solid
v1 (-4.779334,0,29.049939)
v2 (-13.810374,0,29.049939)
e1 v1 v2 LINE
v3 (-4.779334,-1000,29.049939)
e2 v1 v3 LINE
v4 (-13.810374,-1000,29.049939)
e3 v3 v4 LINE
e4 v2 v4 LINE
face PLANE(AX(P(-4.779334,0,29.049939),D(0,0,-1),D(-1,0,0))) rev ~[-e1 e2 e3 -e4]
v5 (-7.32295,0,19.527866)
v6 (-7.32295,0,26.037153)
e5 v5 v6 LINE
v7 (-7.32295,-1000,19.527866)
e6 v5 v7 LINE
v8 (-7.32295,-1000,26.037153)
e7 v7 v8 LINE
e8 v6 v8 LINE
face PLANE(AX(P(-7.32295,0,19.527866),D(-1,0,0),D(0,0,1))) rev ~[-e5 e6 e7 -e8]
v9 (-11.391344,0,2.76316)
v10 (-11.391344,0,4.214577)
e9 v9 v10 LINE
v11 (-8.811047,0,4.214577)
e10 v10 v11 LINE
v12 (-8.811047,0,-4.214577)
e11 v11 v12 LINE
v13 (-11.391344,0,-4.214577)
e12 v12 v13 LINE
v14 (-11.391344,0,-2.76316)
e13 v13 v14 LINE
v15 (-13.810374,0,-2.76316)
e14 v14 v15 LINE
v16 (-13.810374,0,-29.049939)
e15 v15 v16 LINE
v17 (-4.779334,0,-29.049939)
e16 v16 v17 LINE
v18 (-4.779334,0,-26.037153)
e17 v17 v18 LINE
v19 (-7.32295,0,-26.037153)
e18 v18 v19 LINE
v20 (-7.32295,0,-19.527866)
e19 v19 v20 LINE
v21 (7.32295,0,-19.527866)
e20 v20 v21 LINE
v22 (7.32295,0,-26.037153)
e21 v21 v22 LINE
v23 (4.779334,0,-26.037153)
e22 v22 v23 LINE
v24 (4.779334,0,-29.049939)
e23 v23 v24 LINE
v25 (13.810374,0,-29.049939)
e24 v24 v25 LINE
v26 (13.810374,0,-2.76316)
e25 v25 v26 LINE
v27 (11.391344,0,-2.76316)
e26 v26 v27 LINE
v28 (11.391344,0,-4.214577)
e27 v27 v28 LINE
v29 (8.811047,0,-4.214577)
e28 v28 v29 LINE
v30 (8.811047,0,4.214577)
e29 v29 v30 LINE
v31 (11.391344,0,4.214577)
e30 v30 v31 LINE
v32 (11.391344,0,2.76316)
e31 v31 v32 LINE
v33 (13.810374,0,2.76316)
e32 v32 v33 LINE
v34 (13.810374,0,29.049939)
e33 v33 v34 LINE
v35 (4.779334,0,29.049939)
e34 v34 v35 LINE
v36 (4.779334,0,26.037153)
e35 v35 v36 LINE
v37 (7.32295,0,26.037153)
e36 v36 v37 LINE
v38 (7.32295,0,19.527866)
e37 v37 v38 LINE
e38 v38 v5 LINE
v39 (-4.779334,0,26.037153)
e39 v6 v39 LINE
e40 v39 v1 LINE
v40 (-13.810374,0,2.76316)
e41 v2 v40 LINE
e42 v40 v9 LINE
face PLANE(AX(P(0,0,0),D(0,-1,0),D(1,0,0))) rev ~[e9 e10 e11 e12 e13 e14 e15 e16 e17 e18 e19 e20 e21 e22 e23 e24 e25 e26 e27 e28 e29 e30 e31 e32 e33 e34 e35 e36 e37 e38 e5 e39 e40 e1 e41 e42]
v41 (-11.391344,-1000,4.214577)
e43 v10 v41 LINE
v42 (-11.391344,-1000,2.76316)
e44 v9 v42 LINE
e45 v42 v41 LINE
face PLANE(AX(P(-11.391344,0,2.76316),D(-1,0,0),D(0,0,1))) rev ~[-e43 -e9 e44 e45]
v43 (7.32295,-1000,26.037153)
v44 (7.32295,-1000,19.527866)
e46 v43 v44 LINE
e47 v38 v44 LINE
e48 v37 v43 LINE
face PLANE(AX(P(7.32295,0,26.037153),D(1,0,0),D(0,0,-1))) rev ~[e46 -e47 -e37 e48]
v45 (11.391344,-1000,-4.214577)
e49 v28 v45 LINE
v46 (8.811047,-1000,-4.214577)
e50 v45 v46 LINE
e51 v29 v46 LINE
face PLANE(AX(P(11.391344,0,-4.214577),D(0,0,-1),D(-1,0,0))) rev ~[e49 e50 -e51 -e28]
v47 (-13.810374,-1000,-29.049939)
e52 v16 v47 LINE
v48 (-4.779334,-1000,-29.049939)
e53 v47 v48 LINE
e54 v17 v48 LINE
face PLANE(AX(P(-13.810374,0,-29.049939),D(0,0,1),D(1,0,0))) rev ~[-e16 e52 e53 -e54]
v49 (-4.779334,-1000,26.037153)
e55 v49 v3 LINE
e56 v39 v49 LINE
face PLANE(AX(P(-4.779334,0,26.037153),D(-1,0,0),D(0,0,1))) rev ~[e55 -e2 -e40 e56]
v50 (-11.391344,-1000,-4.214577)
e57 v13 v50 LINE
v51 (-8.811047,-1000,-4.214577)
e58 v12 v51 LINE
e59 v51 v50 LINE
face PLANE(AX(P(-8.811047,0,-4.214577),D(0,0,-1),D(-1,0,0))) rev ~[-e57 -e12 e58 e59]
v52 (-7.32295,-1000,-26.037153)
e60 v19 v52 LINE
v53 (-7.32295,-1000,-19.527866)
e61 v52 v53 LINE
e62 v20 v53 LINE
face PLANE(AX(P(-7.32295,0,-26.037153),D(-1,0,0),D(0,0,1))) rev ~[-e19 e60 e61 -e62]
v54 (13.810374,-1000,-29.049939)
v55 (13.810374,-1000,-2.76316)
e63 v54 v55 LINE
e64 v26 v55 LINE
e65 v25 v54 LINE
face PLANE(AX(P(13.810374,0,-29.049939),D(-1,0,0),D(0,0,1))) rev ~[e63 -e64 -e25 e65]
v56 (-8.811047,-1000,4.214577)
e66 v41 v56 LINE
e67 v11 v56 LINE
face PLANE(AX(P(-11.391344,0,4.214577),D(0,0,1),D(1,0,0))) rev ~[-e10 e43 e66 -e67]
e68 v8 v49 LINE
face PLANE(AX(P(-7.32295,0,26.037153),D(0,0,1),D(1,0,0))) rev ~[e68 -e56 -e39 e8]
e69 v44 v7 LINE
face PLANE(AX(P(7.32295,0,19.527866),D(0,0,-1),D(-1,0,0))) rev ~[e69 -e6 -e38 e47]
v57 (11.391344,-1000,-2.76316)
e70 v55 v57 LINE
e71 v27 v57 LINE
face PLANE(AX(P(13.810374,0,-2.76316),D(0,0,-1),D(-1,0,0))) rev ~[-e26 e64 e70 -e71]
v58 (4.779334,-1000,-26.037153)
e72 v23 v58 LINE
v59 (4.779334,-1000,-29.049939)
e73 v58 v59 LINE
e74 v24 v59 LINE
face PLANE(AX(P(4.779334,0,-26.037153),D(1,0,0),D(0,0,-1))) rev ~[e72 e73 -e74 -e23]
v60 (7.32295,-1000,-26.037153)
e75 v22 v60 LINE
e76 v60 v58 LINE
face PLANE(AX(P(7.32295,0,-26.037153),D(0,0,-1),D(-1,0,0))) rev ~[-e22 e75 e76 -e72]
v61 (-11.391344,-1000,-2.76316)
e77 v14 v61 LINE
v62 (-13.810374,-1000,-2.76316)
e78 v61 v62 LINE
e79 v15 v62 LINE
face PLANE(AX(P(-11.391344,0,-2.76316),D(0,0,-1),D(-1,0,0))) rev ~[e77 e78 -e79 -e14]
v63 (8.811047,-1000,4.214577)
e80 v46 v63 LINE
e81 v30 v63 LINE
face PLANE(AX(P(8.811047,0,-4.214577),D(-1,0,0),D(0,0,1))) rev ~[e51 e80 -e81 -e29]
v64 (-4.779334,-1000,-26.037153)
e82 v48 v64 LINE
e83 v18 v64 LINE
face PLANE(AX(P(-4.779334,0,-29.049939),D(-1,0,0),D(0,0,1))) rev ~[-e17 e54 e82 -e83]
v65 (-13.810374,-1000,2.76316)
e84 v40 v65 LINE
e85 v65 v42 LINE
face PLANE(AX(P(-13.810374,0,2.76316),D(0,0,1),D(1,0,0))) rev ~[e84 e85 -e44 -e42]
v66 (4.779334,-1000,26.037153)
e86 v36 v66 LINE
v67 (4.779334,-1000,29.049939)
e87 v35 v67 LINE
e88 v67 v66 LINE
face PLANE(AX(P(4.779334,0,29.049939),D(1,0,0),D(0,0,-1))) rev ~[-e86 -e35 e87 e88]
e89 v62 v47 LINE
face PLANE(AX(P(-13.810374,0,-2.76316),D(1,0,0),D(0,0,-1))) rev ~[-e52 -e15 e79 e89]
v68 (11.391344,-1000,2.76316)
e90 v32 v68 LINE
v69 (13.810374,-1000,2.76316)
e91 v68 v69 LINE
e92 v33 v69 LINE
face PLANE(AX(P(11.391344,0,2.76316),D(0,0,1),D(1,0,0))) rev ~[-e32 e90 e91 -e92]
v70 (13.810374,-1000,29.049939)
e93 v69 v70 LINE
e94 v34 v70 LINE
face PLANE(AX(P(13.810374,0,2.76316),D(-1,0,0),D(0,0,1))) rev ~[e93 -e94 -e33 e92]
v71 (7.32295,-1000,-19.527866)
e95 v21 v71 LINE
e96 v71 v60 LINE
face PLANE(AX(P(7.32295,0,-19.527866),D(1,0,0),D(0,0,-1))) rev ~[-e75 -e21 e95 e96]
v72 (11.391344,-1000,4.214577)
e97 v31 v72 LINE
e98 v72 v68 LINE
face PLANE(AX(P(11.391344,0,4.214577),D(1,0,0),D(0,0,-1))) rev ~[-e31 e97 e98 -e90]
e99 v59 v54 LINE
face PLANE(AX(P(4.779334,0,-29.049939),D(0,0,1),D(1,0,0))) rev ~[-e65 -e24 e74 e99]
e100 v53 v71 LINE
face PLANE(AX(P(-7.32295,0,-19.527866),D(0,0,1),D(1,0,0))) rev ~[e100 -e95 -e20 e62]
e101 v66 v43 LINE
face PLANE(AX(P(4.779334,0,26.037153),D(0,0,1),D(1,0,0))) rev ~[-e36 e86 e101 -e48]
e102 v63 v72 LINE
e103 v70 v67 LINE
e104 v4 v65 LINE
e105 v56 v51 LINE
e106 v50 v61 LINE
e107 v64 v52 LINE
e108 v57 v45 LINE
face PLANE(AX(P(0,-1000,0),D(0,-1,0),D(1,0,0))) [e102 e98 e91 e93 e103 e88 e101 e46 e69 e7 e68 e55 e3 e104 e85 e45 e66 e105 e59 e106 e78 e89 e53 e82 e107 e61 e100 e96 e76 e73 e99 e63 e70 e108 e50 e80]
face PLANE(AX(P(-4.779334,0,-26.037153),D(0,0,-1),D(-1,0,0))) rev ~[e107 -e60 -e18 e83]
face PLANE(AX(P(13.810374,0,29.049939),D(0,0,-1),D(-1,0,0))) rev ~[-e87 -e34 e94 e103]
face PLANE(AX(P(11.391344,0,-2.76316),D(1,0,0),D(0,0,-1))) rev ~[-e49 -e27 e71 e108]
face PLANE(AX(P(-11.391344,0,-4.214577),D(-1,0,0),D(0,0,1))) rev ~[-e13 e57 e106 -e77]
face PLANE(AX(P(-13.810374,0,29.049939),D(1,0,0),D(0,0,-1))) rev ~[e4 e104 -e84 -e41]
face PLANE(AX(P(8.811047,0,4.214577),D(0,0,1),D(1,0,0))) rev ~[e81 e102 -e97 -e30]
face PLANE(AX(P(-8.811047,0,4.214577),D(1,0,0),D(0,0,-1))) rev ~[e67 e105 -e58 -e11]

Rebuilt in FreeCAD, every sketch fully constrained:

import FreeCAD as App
import Part
import Sketcher
Q = App.Units.Quantity

doc = App.newDocument("Part")
params = doc.addObject("Spreadsheet::Sheet", "Params")
for row, (alias, value) in enumerate([
    ("pad1_length", "1000 mm"),
], start=1):
    params.set(f"A{row}", alias)
    params.set(f"B{row}", "=" + value)
    params.setAlias(f"B{row}", alias)

body = doc.addObject("PartDesign::Body", "Body")

sketch1 = doc.addObject("Sketcher::SketchObject", "Sketch")
body.addObject(sketch1)
sketch1.AttachmentSupport = (doc.XZ_Plane, [""])
sketch1.MapMode = "FlatFace"
sketch1.addGeometry([
    Part.LineSegment(App.Vector(7.3, 19.5, 0), App.Vector(-7.3, 19.5, 0)),
    Part.LineSegment(App.Vector(-7.3, 19.5, 0), App.Vector(-7.3, 26, 0)),
    Part.LineSegment(App.Vector(-7.3, 26, 0), App.Vector(-4.8, 26, 0)),
    Part.LineSegment(App.Vector(-4.8, 26, 0), App.Vector(-4.8, 29, 0)),
    Part.LineSegment(App.Vector(-4.8, 29, 0), App.Vector(-13.8, 29, 0)),
    Part.LineSegment(App.Vector(-13.8, 29, 0), App.Vector(-13.8, 2.8, 0)),
    Part.LineSegment(App.Vector(-13.8, 2.8, 0), App.Vector(-11.4, 2.8, 0)),
    Part.LineSegment(App.Vector(-11.4, 2.8, 0), App.Vector(-11.4, 4.2, 0)),
    Part.LineSegment(App.Vector(-11.4, 4.2, 0), App.Vector(-8.8, 4.2, 0)),
    Part.LineSegment(App.Vector(-8.8, 4.2, 0), App.Vector(-8.8, -4.2, 0)),
    Part.LineSegment(App.Vector(-8.8, -4.2, 0), App.Vector(-11.4, -4.2, 0)),
    Part.LineSegment(App.Vector(-11.4, -4.2, 0), App.Vector(-11.4, -2.8, 0)),
    Part.LineSegment(App.Vector(-11.4, -2.8, 0), App.Vector(-13.8, -2.8, 0)),
    Part.LineSegment(App.Vector(-13.8, -2.8, 0), App.Vector(-13.8, -29, 0)),
    Part.LineSegment(App.Vector(-13.8, -29, 0), App.Vector(-4.8, -29, 0)),
    Part.LineSegment(App.Vector(-4.8, -29, 0), App.Vector(-4.8, -26, 0)),
    Part.LineSegment(App.Vector(-4.8, -26, 0), App.Vector(-7.3, -26, 0)),
    Part.LineSegment(App.Vector(-7.3, -26, 0), App.Vector(-7.3, -19.5, 0)),
    Part.LineSegment(App.Vector(-7.3, -19.5, 0), App.Vector(7.3, -19.5, 0)),
    Part.LineSegment(App.Vector(7.3, -19.5, 0), App.Vector(7.3, -26, 0)),
    Part.LineSegment(App.Vector(7.3, -26, 0), App.Vector(4.8, -26, 0)),
    Part.LineSegment(App.Vector(4.8, -26, 0), App.Vector(4.8, -29, 0)),
    Part.LineSegment(App.Vector(4.8, -29, 0), App.Vector(13.8, -29, 0)),
    Part.LineSegment(App.Vector(13.8, -29, 0), App.Vector(13.8, -2.8, 0)),
    Part.LineSegment(App.Vector(13.8, -2.8, 0), App.Vector(11.4, -2.8, 0)),
    Part.LineSegment(App.Vector(11.4, -2.8, 0), App.Vector(11.4, -4.2, 0)),
    Part.LineSegment(App.Vector(11.4, -4.2, 0), App.Vector(8.8, -4.2, 0)),
    Part.LineSegment(App.Vector(8.8, -4.2, 0), App.Vector(8.8, 4.2, 0)),
    Part.LineSegment(App.Vector(8.8, 4.2, 0), App.Vector(11.4, 4.2, 0)),
    Part.LineSegment(App.Vector(11.4, 4.2, 0), App.Vector(11.4, 2.8, 0)),
    Part.LineSegment(App.Vector(11.4, 2.8, 0), App.Vector(13.8, 2.8, 0)),
    Part.LineSegment(App.Vector(13.8, 2.8, 0), App.Vector(13.8, 29, 0)),
    Part.LineSegment(App.Vector(13.8, 29, 0), App.Vector(4.8, 29, 0)),
    Part.LineSegment(App.Vector(4.8, 29, 0), App.Vector(4.8, 26, 0)),
    Part.LineSegment(App.Vector(4.8, 26, 0), App.Vector(7.3, 26, 0)),
    Part.LineSegment(App.Vector(7.3, 26, 0), App.Vector(7.3, 19.5, 0)),
], False)
sketch1.addConstraint([
    Sketcher.Constraint("Coincident", 0, 2, 1, 1),
    Sketcher.Constraint("Coincident", 1, 2, 2, 1),
    Sketcher.Constraint("Coincident", 2, 2, 3, 1),
    Sketcher.Constraint("Coincident", 3, 2, 4, 1),
    Sketcher.Constraint("Coincident", 4, 2, 5, 1),
    Sketcher.Constraint("Coincident", 5, 2, 6, 1),
    Sketcher.Constraint("Coincident", 6, 2, 7, 1),
    Sketcher.Constraint("Coincident", 7, 2, 8, 1),
    Sketcher.Constraint("Coincident", 8, 2, 9, 1),
    Sketcher.Constraint("Coincident", 9, 2, 10, 1),
    Sketcher.Constraint("Coincident", 10, 2, 11, 1),
    Sketcher.Constraint("Coincident", 11, 2, 12, 1),
    Sketcher.Constraint("Coincident", 12, 2, 13, 1),
    Sketcher.Constraint("Coincident", 13, 2, 14, 1),
    Sketcher.Constraint("Coincident", 14, 2, 15, 1),
    Sketcher.Constraint("Coincident", 15, 2, 16, 1),
    Sketcher.Constraint("Coincident", 16, 2, 17, 1),
    Sketcher.Constraint("Coincident", 17, 2, 18, 1),
    Sketcher.Constraint("Coincident", 18, 2, 19, 1),
    Sketcher.Constraint("Coincident", 19, 2, 20, 1),
    Sketcher.Constraint("Coincident", 20, 2, 21, 1),
    Sketcher.Constraint("Coincident", 21, 2, 22, 1),
    Sketcher.Constraint("Coincident", 22, 2, 23, 1),
    Sketcher.Constraint("Coincident", 23, 2, 24, 1),
    Sketcher.Constraint("Coincident", 24, 2, 25, 1),
    Sketcher.Constraint("Coincident", 25, 2, 26, 1),
    Sketcher.Constraint("Coincident", 26, 2, 27, 1),
    Sketcher.Constraint("Coincident", 27, 2, 28, 1),
    Sketcher.Constraint("Coincident", 28, 2, 29, 1),
    Sketcher.Constraint("Coincident", 29, 2, 30, 1),
    Sketcher.Constraint("Coincident", 30, 2, 31, 1),
    Sketcher.Constraint("Coincident", 31, 2, 32, 1),
    Sketcher.Constraint("Coincident", 32, 2, 33, 1),
    Sketcher.Constraint("Coincident", 33, 2, 34, 1),
    Sketcher.Constraint("Coincident", 34, 2, 35, 1),
    Sketcher.Constraint("Coincident", 35, 2, 0, 1),
    Sketcher.Constraint("Horizontal", 0),
    Sketcher.Constraint("Vertical", 1),
    Sketcher.Constraint("Horizontal", 2),
    Sketcher.Constraint("Vertical", 3),
    Sketcher.Constraint("Horizontal", 4),
    Sketcher.Constraint("Vertical", 5),
    Sketcher.Constraint("Horizontal", 6),
    Sketcher.Constraint("Vertical", 7),
    Sketcher.Constraint("Horizontal", 8),
    Sketcher.Constraint("Vertical", 9),
    Sketcher.Constraint("Horizontal", 10),
    Sketcher.Constraint("Vertical", 11),
    Sketcher.Constraint("Horizontal", 12),
    Sketcher.Constraint("Vertical", 13),
    Sketcher.Constraint("Horizontal", 14),
    Sketcher.Constraint("Vertical", 15),
    Sketcher.Constraint("Horizontal", 16),
    Sketcher.Constraint("Vertical", 17),
    Sketcher.Constraint("Horizontal", 18),
    Sketcher.Constraint("Vertical", 19),
    Sketcher.Constraint("Horizontal", 20),
    Sketcher.Constraint("Vertical", 21),
    Sketcher.Constraint("Horizontal", 22),
    Sketcher.Constraint("Vertical", 23),
    Sketcher.Constraint("Horizontal", 24),
    Sketcher.Constraint("Vertical", 25),
    Sketcher.Constraint("Horizontal", 26),
    Sketcher.Constraint("Vertical", 27),
    Sketcher.Constraint("Horizontal", 28),
    Sketcher.Constraint("Vertical", 29),
    Sketcher.Constraint("Horizontal", 30),
    Sketcher.Constraint("Vertical", 31),
    Sketcher.Constraint("Horizontal", 32),
    Sketcher.Constraint("Vertical", 33),
    Sketcher.Constraint("Horizontal", 34),
    Sketcher.Constraint("Vertical", 35),
    Sketcher.Constraint("Symmetric", 0, 2, 18, 2, -1, 1),
    Sketcher.Constraint("Symmetric", 2, 2, 20, 2, -1, 1),
    Sketcher.Constraint("Symmetric", 4, 2, 22, 2, -1, 1),
    Sketcher.Constraint("Symmetric", 6, 2, 24, 2, -1, 1),
    Sketcher.Constraint("Symmetric", 8, 2, 26, 2, -1, 1),
    Sketcher.Constraint("Symmetric", 10, 2, 28, 2, -1, 1),
    Sketcher.Constraint("Symmetric", 12, 2, 30, 2, -1, 1),
    Sketcher.Constraint("Symmetric", 14, 2, 32, 2, -1, 1),
    Sketcher.Constraint("Symmetric", 16, 2, 34, 2, -1, 1),
    Sketcher.Constraint("Symmetric", 16, 2, 19, 2, -2),
    Sketcher.Constraint("Symmetric", 14, 2, 21, 2, -2),
    Sketcher.Constraint("Symmetric", 12, 2, 23, 2, -2),
    Sketcher.Constraint("Symmetric", 10, 2, 25, 2, -2),
    Sketcher.Constraint("DistanceX", 0, 2, 0, 1, Q("14.6459 mm")),
    Sketcher.Constraint("DistanceX", 4, 2, 4, 1, Q("9.03104 mm")),
    Sketcher.Constraint("DistanceX", 6, 1, 6, 2, Q("2.419029 mm")),
    Sketcher.Constraint("DistanceY", 5, 2, 5, 1, Q("26.286778 mm")),
    Sketcher.Constraint("DistanceY", 13, 2, 5, 2, Q("31.813099 mm")),
    Sketcher.Constraint("DistanceX", 2, 1, 2, 2, Q("2.543616 mm")),
    Sketcher.Constraint("DistanceX", 8, 1, 8, 2, Q("2.580297 mm")),
    Sketcher.Constraint("DistanceY", 1, 1, 1, 2, Q("6.509287 mm")),
    Sketcher.Constraint("DistanceY", 3, 1, 3, 2, Q("3.012786 mm")),
    Sketcher.Constraint("DistanceY", 7, 1, 7, 2, Q("1.451417 mm")),
])
pad1 = doc.addObject("PartDesign::Pad", "Pad")
body.addObject(pad1)
pad1.Profile = sketch1
pad1.setExpression("Length", "Params.pad1_length")

doc.recompute()
